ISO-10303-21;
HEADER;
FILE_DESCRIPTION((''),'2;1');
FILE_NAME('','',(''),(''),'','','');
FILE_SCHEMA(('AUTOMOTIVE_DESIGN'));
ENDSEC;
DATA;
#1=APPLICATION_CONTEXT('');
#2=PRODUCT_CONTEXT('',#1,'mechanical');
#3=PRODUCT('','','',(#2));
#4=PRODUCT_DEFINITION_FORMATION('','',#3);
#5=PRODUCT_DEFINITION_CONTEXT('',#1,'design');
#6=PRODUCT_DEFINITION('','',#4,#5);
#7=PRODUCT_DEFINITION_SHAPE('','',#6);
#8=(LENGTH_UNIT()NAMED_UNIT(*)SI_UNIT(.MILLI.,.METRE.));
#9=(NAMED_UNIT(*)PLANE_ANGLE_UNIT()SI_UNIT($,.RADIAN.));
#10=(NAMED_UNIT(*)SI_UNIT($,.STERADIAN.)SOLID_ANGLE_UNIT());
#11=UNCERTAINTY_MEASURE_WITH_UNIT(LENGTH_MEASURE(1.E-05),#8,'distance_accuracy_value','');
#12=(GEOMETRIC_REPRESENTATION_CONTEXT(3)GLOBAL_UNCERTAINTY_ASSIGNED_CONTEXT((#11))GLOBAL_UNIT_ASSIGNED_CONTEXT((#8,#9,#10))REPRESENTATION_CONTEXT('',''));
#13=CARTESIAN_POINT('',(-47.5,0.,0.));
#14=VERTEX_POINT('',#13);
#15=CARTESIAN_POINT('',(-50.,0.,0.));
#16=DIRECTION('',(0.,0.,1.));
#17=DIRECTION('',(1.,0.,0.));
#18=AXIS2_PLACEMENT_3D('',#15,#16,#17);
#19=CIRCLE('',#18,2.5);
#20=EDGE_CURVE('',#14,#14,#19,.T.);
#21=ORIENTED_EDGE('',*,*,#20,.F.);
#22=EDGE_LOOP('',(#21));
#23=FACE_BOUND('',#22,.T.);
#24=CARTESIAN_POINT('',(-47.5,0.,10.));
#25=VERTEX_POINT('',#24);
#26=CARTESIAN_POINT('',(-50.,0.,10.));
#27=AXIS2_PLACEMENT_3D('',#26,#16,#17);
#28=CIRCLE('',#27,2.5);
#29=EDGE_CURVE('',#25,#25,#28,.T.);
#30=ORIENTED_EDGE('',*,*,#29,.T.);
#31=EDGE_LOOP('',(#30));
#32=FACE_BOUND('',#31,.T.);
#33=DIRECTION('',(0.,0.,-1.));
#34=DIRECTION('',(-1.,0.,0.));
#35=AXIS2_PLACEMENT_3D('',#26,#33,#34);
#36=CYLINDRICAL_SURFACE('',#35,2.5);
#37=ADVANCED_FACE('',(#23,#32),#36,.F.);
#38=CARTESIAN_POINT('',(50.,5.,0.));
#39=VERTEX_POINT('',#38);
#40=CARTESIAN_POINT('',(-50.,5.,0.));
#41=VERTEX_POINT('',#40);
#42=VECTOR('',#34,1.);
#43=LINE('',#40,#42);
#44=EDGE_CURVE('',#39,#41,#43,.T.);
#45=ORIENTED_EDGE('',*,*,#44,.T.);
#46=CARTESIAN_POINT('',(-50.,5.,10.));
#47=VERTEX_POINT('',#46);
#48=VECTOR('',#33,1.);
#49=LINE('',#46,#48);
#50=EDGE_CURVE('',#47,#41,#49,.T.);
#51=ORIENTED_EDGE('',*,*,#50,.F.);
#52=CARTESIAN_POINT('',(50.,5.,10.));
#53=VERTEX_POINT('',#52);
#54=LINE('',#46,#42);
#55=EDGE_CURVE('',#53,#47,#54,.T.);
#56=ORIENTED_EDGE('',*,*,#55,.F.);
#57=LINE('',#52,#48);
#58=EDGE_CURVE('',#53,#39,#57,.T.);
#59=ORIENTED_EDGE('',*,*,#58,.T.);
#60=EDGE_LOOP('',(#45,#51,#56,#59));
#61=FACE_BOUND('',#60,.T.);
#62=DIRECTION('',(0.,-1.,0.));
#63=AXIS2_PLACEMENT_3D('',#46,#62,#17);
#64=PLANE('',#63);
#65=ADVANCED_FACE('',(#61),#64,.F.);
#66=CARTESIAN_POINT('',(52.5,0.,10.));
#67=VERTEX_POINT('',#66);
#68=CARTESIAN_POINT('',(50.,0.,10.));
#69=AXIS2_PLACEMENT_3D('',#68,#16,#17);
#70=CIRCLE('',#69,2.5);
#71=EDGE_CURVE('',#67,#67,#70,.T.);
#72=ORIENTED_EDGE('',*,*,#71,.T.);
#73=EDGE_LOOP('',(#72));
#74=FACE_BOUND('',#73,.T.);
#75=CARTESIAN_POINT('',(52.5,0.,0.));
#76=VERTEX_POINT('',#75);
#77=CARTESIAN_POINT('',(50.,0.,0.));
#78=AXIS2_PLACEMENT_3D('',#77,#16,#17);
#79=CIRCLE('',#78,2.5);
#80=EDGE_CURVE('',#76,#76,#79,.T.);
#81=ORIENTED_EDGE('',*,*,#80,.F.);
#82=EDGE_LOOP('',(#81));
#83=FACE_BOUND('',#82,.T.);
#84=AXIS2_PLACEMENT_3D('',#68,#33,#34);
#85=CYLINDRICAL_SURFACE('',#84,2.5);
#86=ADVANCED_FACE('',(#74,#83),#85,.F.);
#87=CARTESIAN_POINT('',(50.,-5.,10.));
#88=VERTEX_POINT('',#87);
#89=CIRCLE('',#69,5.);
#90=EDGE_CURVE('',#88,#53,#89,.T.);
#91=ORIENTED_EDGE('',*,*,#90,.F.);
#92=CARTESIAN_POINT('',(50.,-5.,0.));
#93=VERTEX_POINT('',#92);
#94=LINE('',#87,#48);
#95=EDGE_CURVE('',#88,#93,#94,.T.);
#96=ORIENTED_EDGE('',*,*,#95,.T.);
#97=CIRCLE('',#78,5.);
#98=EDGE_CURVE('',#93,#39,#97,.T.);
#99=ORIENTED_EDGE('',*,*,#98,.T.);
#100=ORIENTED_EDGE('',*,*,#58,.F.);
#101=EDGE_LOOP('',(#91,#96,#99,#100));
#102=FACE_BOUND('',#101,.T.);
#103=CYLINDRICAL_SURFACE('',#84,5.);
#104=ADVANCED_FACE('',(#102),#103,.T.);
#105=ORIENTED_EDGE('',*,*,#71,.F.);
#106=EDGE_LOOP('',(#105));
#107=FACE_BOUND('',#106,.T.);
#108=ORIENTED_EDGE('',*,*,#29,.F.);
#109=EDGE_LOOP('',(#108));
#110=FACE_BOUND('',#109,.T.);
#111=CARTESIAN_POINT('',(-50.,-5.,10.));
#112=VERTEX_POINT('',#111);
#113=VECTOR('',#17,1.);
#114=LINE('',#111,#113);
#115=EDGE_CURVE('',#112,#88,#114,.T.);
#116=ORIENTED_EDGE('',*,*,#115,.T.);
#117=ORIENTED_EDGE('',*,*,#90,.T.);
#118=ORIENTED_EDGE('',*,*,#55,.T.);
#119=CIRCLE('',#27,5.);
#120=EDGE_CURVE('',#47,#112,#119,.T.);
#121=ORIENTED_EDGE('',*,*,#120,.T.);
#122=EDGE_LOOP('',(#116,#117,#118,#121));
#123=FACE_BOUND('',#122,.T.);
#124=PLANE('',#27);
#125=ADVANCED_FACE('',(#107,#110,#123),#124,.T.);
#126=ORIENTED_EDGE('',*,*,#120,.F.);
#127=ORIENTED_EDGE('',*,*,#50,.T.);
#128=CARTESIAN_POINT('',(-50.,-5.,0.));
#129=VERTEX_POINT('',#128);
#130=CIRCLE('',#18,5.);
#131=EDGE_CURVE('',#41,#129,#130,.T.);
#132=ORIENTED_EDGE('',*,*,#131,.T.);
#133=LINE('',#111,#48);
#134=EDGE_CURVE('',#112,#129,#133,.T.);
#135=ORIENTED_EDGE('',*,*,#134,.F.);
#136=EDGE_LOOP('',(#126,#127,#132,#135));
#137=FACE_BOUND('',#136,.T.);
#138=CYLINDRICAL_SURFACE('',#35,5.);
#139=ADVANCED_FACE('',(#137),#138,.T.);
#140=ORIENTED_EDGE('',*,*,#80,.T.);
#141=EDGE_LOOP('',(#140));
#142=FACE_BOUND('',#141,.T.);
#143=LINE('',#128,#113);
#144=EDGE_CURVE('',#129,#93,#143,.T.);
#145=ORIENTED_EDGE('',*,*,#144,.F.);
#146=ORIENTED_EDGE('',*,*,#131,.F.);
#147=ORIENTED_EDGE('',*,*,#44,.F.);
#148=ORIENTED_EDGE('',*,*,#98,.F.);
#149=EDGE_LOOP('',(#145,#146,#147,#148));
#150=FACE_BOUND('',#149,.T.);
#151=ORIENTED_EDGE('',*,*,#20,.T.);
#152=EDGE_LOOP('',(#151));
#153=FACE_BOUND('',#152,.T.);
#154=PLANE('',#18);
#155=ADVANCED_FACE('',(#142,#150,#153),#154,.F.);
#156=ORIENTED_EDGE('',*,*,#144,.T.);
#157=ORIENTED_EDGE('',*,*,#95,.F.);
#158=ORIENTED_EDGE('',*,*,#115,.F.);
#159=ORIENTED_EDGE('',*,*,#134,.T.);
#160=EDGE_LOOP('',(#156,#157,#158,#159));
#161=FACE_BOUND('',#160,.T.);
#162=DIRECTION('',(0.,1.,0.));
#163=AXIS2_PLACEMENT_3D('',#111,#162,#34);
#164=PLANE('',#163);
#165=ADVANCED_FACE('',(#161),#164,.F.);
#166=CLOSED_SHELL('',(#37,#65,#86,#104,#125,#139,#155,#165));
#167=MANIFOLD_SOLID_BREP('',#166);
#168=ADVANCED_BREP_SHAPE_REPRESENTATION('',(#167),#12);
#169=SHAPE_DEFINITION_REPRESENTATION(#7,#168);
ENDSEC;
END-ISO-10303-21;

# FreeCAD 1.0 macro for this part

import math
import FreeCAD as App
import Part
import Sketcher

doc = App.newDocument("Part")
params = doc.addObject("Spreadsheet::Sheet", "Params")
for row, (alias, value) in enumerate([
    ("sketch1_diameter", "5 mm"),
    ("sketch1_radius", "5 mm"),
    ("sketch1_width", "100 mm"),
    ("pad1_length", "10 mm"),
], start=1):
    params.set(f"A{row}", alias)
    params.set(f"B{row}", "=" + value)
    params.setAlias(f"B{row}", alias)

body = doc.addObject("PartDesign::Body", "Body")

# Sketch on XY plane
sketch1 = body.newObject("Sketcher::SketchObject", "Sketch")
sketch1.AttachmentSupport = (doc.getObject("XY_Plane"), [""])
sketch1.MapMode = "FlatFace"
sketch1.addGeometry(Part.LineSegment(App.Vector(50, 5, 0), App.Vector(-50, 5, 0)), False)
sketch1.addGeometry(Part.ArcOfCircle(Part.Circle(App.Vector(-50, 0, 0), App.Vector(0, 0, 1), 5), math.radians(90), math.radians(270)), False)
sketch1.addGeometry(Part.LineSegment(App.Vector(-50, -5, 0), App.Vector(50, -5, 0)), False)
sketch1.addGeometry(Part.ArcOfCircle(Part.Circle(App.Vector(50, 0, 0), App.Vector(0, 0, 1), 5), math.radians(-90), math.radians(90)), False)
sketch1.addGeometry(Part.Circle(App.Vector(50, 0, 0), App.Vector(0, 0, 1), 2.5), False)
sketch1.addGeometry(Part.Circle(App.Vector(-50, 0, 0), App.Vector(0, 0, 1), 2.5), False)
sketch1.addConstraint(Sketcher.Constraint("Tangent", 0, 2, 1, 1))
sketch1.addConstraint(Sketcher.Constraint("Tangent", 1, 2, 2, 1))
sketch1.addConstraint(Sketcher.Constraint("Tangent", 2, 2, 3, 1))
sketch1.addConstraint(Sketcher.Constraint("Tangent", 3, 2, 0, 1))
sketch1.addConstraint(Sketcher.Constraint("Horizontal", 0))
sketch1.addConstraint(Sketcher.Constraint("Horizontal", 2))
sketch1.addConstraint(Sketcher.Constraint("Coincident", 4, 3, 3, 3))
sketch1.addConstraint(Sketcher.Constraint("Coincident", 5, 3, 1, 3))
sketch1.addConstraint(Sketcher.Constraint("Equal", 4, 5))
sketch1.addConstraint(Sketcher.Constraint("Symmetric", 1, 3, 3, 3, -1, 1))
sketch1.addConstraint(Sketcher.Constraint("Diameter", 4, 5.0))
sketch1.addConstraint(Sketcher.Constraint("Radius", 1, 5.0))
sketch1.addConstraint(Sketcher.Constraint("DistanceX", 0, 2, 0, 1, 100.0))
sketch1.setExpression("Constraints[10]", "Params.sketch1_diameter")
sketch1.setExpression("Constraints[11]", "Params.sketch1_radius")
sketch1.setExpression("Constraints[12]", "Params.sketch1_width")
pad1 = body.newObject("PartDesign::Pad", "Pad")
pad1.Profile = sketch1
pad1.setExpression("Length", "Params.pad1_length")

doc.recompute()
